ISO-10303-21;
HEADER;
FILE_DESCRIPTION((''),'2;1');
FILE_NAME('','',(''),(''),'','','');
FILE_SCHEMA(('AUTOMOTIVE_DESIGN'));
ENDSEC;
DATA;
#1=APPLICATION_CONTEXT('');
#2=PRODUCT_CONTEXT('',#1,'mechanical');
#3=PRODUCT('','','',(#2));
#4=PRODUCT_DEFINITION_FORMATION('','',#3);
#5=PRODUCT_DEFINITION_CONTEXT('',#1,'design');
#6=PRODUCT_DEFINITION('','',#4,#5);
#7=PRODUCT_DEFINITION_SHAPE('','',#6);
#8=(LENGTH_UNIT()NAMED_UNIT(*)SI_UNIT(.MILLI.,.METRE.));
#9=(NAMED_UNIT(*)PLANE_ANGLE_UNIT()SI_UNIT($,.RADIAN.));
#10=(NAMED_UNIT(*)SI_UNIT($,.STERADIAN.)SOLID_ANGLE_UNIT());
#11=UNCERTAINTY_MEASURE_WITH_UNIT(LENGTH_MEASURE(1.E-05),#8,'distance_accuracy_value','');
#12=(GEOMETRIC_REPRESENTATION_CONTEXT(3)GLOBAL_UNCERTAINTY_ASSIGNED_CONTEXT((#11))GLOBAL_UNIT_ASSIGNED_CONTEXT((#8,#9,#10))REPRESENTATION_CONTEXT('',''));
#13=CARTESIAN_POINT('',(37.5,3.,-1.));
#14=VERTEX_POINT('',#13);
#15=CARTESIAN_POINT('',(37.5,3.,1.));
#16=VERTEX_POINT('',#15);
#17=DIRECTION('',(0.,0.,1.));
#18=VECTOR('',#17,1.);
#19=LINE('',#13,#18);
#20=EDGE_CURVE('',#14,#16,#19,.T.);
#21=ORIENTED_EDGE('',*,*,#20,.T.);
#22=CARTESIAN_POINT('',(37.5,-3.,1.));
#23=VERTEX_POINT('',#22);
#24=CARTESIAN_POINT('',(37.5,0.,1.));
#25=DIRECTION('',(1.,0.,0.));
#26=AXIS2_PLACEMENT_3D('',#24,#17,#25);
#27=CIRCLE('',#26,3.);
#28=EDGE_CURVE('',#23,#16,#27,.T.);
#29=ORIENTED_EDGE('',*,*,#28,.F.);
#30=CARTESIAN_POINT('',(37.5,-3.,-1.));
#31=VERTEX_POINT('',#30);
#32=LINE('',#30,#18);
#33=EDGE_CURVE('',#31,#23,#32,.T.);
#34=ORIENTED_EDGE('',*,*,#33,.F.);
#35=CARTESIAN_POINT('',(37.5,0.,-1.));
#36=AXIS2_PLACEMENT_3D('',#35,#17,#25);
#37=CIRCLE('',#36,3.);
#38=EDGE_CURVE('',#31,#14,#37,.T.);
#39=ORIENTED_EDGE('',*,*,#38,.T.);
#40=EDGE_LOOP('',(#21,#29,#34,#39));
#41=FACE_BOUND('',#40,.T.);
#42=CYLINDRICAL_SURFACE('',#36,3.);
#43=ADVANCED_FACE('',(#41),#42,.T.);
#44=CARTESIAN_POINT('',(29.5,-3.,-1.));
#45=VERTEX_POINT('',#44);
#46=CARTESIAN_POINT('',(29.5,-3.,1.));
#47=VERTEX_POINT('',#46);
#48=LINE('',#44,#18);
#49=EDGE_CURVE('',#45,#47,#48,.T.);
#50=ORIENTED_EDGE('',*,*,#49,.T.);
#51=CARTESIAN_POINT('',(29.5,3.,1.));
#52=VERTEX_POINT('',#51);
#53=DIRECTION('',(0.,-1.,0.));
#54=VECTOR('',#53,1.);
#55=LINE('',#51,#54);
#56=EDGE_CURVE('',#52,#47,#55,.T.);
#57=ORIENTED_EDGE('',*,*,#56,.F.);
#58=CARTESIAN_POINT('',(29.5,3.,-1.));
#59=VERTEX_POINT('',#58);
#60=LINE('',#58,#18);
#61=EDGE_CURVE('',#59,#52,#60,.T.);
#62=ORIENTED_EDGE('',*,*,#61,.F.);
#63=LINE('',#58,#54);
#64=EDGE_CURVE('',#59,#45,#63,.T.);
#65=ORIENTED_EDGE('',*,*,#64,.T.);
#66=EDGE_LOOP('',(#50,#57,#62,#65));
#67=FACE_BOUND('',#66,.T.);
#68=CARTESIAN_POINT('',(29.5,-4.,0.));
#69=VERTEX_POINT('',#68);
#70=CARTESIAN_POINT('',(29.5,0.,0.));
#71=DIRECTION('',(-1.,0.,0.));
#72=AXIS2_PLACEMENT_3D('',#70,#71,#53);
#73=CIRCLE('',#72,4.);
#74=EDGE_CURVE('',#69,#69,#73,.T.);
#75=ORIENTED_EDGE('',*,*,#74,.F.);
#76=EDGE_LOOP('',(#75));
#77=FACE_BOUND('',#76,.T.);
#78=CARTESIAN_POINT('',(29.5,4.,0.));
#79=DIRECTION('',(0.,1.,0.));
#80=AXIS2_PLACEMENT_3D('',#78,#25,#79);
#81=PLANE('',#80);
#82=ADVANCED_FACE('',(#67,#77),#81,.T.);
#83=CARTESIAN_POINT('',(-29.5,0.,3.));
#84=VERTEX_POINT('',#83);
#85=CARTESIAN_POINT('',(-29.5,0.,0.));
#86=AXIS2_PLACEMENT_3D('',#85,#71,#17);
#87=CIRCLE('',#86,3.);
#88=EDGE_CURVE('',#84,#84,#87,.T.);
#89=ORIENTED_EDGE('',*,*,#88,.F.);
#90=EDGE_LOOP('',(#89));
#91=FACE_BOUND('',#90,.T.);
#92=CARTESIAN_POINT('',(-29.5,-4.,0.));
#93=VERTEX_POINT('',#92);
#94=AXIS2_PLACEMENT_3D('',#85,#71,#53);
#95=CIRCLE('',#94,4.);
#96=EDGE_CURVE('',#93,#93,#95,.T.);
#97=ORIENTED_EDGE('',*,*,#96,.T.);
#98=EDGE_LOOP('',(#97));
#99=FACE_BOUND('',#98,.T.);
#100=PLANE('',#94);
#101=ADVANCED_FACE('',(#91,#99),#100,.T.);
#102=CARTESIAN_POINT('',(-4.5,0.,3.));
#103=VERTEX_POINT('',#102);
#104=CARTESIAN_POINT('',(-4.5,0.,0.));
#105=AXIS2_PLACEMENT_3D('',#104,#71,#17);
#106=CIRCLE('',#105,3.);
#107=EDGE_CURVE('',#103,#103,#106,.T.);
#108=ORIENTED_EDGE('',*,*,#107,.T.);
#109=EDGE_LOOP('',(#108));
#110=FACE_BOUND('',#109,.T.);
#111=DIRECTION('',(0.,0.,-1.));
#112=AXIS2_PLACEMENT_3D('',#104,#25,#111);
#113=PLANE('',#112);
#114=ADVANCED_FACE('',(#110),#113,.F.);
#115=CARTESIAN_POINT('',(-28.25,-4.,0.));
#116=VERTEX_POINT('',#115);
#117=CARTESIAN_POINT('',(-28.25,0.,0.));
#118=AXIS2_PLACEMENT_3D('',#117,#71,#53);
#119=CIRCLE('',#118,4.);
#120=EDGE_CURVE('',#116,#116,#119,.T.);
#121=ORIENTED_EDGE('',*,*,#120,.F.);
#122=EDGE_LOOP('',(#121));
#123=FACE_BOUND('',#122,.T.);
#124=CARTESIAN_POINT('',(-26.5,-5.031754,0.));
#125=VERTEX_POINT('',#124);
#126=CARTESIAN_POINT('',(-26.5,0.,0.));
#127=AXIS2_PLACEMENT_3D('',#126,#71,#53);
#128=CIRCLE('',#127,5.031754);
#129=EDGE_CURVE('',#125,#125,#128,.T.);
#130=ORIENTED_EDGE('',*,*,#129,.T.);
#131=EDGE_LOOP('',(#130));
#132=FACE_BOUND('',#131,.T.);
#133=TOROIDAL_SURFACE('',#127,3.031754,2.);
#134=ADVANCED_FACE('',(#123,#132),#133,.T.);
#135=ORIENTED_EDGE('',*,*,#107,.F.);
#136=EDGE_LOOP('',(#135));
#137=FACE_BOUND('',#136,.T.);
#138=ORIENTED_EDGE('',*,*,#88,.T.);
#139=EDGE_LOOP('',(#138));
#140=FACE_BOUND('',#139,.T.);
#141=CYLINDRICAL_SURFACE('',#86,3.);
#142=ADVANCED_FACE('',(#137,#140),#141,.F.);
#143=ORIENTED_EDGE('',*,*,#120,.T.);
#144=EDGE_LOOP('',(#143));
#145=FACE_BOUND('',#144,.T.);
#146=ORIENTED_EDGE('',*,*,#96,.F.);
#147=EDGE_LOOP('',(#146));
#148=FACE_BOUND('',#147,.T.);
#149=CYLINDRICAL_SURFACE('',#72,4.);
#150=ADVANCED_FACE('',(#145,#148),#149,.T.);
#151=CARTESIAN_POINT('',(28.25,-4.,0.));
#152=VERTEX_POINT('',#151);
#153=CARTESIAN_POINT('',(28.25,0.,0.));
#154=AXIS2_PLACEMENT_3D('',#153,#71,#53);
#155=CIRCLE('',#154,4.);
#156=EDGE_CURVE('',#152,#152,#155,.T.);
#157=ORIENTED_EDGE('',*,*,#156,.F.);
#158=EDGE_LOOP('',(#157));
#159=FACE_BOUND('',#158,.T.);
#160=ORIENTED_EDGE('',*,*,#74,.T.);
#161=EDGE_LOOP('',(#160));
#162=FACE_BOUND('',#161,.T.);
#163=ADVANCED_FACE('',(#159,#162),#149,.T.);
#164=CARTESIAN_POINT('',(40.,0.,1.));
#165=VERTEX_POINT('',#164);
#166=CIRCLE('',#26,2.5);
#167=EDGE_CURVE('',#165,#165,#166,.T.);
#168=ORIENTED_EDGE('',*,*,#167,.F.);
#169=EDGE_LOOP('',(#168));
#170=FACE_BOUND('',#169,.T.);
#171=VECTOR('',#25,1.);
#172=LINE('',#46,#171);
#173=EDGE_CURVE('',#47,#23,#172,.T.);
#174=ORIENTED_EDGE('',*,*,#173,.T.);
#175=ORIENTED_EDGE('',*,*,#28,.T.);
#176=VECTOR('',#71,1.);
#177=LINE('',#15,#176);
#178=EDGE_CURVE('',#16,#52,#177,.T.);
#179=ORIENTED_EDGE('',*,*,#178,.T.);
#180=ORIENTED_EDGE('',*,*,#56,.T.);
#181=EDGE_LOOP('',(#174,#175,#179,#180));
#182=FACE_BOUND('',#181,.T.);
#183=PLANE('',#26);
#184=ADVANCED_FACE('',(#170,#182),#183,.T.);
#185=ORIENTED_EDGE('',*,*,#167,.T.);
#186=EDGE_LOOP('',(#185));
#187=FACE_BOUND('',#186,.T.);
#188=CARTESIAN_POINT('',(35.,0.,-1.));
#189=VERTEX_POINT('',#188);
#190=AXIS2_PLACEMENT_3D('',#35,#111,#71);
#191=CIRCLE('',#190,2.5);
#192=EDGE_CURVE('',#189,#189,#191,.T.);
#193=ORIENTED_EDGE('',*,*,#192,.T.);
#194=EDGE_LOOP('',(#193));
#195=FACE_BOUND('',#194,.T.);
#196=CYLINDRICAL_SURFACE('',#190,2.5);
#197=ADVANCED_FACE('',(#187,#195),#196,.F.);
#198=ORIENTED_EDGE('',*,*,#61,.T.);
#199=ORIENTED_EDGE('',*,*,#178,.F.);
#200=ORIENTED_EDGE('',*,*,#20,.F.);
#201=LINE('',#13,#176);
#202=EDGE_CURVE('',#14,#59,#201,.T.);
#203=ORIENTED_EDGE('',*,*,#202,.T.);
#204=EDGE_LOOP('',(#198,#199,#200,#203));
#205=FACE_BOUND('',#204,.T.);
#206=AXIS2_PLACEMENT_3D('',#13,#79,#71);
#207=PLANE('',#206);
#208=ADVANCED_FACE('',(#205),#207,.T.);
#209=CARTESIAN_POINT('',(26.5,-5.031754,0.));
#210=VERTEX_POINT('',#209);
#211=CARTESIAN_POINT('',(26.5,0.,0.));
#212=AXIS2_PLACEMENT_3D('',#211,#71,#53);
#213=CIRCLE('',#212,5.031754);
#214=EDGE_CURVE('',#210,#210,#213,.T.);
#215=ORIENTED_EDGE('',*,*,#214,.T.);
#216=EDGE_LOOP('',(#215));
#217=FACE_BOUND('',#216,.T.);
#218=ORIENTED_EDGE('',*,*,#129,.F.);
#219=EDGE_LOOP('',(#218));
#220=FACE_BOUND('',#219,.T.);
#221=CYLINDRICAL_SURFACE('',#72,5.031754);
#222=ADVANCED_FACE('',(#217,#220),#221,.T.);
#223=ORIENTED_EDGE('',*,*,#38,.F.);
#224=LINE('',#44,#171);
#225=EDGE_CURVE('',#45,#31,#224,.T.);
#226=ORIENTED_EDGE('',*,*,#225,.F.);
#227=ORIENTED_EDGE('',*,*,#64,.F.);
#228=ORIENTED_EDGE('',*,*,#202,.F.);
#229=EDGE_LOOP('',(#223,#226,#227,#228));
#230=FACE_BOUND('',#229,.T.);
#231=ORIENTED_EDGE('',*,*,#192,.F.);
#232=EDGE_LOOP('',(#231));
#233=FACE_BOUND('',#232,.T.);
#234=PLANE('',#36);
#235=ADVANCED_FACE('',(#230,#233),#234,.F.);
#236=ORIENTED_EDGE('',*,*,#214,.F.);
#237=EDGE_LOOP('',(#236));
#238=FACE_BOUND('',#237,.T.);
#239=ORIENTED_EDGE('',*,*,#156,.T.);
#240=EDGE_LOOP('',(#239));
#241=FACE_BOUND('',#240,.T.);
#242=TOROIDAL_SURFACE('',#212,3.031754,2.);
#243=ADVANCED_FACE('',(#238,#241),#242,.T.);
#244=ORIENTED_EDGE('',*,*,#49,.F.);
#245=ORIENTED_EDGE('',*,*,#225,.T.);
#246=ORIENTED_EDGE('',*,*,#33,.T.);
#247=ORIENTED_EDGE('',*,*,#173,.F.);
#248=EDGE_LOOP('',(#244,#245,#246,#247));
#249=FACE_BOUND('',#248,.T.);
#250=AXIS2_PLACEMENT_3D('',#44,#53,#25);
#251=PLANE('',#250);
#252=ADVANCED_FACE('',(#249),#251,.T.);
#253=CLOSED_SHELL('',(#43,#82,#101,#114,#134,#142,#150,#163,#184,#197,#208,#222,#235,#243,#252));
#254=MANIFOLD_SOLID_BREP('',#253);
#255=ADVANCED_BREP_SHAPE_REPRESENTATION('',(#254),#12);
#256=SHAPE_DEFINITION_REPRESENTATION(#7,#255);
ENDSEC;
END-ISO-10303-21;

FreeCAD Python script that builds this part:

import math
import FreeCAD as App
import Part
import Sketcher
from FreeCAD import Vector
Q = App.Units.Quantity

doc = App.newDocument("Part")
body = doc.addObject("PartDesign::Body", "Body")

# Sketch on XY plane
sketch1 = body.newObject("Sketcher::SketchObject", "Sketch")
sketch1.AttachmentSupport = (doc.getObject("XY_Plane"), [""])
sketch1.MapMode = "FlatFace"
sketch1.addGeometry(Part.LineSegment(Vector(29.5, 4, 0), Vector(29.5, 0, 0)), False)
sketch1.addGeometry(Part.LineSegment(Vector(29.5, 0, 0), Vector(-29.5, 0, 0)), False)
sketch1.addGeometry(Part.LineSegment(Vector(-29.5, 0, 0), Vector(-29.5, 4, 0)), False)
sketch1.addGeometry(Part.LineSegment(Vector(-29.5, 4, 0), Vector(-28.2, 4, 0)), False)
sketch1.addGeometry(Part.ArcOfCircle(Part.Circle(Vector(-26.5, 3, 0), Vector(0, 0, 1), 2), math.radians(90), math.radians(151)), False)
sketch1.addGeometry(Part.LineSegment(Vector(-26.5, 5, 0), Vector(26.5, 5, 0)), False)
sketch1.addGeometry(Part.ArcOfCircle(Part.Circle(Vector(26.5, 3, 0), Vector(0, 0, 1), 2), math.radians(29), math.radians(90)), False)
sketch1.addGeometry(Part.LineSegment(Vector(28.2, 4, 0), Vector(29.5, 4, 0)), False)
sketch1.addConstraint(Sketcher.Constraint("Coincident", 0, 2, 1, 1))
sketch1.addConstraint(Sketcher.Constraint("Coincident", 1, 2, 2, 1))
sketch1.addConstraint(Sketcher.Constraint("Coincident", 2, 2, 3, 1))
sketch1.addConstraint(Sketcher.Constraint("Coincident", 3, 2, 4, 2))
sketch1.addConstraint(Sketcher.Constraint("Tangent", 4, 1, 5, 1))
sketch1.addConstraint(Sketcher.Constraint("Tangent", 5, 2, 6, 2))
sketch1.addConstraint(Sketcher.Constraint("Coincident", 6, 1, 7, 1))
sketch1.addConstraint(Sketcher.Constraint("Coincident", 7, 2, 0, 1))
sketch1.addConstraint(Sketcher.Constraint("Vertical", 0))
sketch1.addConstraint(Sketcher.Constraint("Horizontal", 1))
sketch1.addConstraint(Sketcher.Constraint("Vertical", 2))
sketch1.addConstraint(Sketcher.Constraint("Horizontal", 3))
sketch1.addConstraint(Sketcher.Constraint("Horizontal", 5))
sketch1.addConstraint(Sketcher.Constraint("Horizontal", 7))
sketch1.addConstraint(Sketcher.Constraint("Equal", 4, 6))
sketch1.addConstraint(Sketcher.Constraint("Symmetric", 0, 2, 1, 2, -1, 1))
sketch1.addConstraint(Sketcher.Constraint("Symmetric", 3, 2, 6, 1, -2))
sketch1.addConstraint(Sketcher.Constraint("Radius", 4, Q("2 mm")))
sketch1.addConstraint(Sketcher.Constraint("DistanceX", 1, 2, 1, 1, Q("59 mm")))
sketch1.addConstraint(Sketcher.Constraint("DistanceX", 5, 1, 5, 2, Q("53 mm")))
sketch1.addConstraint(Sketcher.Constraint("DistanceY", 0, 2, 0, 1, Q("4 mm")))
sketch1.addConstraint(Sketcher.Constraint("DistanceX", 3, 1, 3, 2, Q("1.25 mm")))
revolution = body.newObject("PartDesign::Revolution", "Revolution")
revolution.Profile = sketch1
revolution.ReferenceAxis = (sketch1, ["H_Axis"])
revolution.Angle = 360

# Sketch on XY plane
sketch2 = body.newObject("Sketcher::SketchObject", "Sketch001")
sketch2.AttachmentSupport = (doc.getObject("XY_Plane"), [""])
sketch2.MapMode = "FlatFace"
sketch2.AttachmentOffset = App.Placement(Vector(0, 0, 1), App.Rotation())
sketch2.addGeometry(Part.LineSegment(Vector(37.5, 3, 0), Vector(29.5, 3, 0)), False)
sketch2.addGeometry(Part.LineSegment(Vector(29.5, 3, 0), Vector(29.5, -3, 0)), False)
sketch2.addGeometry(Part.LineSegment(Vector(29.5, -3, 0), Vector(37.5, -3, 0)), False)
sketch2.addGeometry(Part.ArcOfCircle(Part.Circle(Vector(37.5, 0, 0), Vector(0, 0, 1), 3), math.radians(-90), math.radians(90)), False)
sketch2.addConstraint(Sketcher.Constraint("Coincident", 0, 2, 1, 1))
sketch2.addConstraint(Sketcher.Constraint("Coincident", 1, 2, 2, 1))
sketch2.addConstraint(Sketcher.Constraint("Tangent", 2, 2, 3, 1))
sketch2.addConstraint(Sketcher.Constraint("Tangent", 3, 2, 0, 1))
sketch2.addConstraint(Sketcher.Constraint("Horizontal", 0))
sketch2.addConstraint(Sketcher.Constraint("Vertical", 1))
sketch2.addConstraint(Sketcher.Constraint("Horizontal", 2))
sketch2.addConstraint(Sketcher.Constraint("PointOnObject", 3, 3, -1))
sketch2.addConstraint(Sketcher.Constraint("Radius", 3, Q("3 mm")))
sketch2.addConstraint(Sketcher.Constraint("DistanceX", 0, 2, 0, 1, Q("8 mm")))
sketch2.addConstraint(Sketcher.Constraint("DistanceX", -1, 1, 3, 3, Q("37.5 mm")))
pad1 = body.newObject("PartDesign::Pad", "Pad")
pad1.Profile = sketch2
pad1.Length = 2
pad1.Reversed = True

# Sketch on YZ plane
sketch3 = body.newObject("Sketcher::SketchObject", "Sketch002")
sketch3.AttachmentSupport = (doc.getObject("YZ_Plane"), [""])
sketch3.MapMode = "FlatFace"
sketch3.AttachmentOffset = App.Placement(Vector(0, 0, -29.5), App.Rotation())
sketch3.addGeometry(Part.Circle(Vector(0, 0, 0), Vector(0, 0, 1), 3), False)
sketch3.addConstraint(Sketcher.Constraint("Coincident", 0, 3, -1, 1))
sketch3.addConstraint(Sketcher.Constraint("Diameter", 0, Q("6 mm")))
doc.recompute()
hole = body.newObject("PartDesign::Hole", "Hole")
hole.Profile = sketch3
hole.ThreadType = "None"
hole.Diameter = 6
hole.DepthType = "Dimension"
hole.Depth = 25
hole.DrillPoint = "Flat"
hole.Reversed = True

# Sketch on XY plane
sketch4 = body.newObject("Sketcher::SketchObject", "Sketch003")
sketch4.AttachmentSupport = (doc.getObject("XY_Plane"), [""])
sketch4.MapMode = "FlatFace"
sketch4.AttachmentOffset = App.Placement(Vector(0, 0, -1), App.Rotation())
sketch4.addGeometry(Part.Circle(Vector(37.5, 0, 0), Vector(0, 0, 1), 2.5), False)
sketch4.addConstraint(Sketcher.Constraint("PointOnObject", 0, 3, -1))
sketch4.addConstraint(Sketcher.Constraint("Diameter", 0, Q("5 mm")))
sketch4.addConstraint(Sketcher.Constraint("DistanceX", -1, 1, 0, 3, Q("37.5 mm")))
doc.recompute()
hole2 = body.newObject("PartDesign::Hole", "Hole001")
hole2.Profile = sketch4
hole2.ThreadType = "None"
hole2.Diameter = 5
hole2.DepthType = "Dimension"
hole2.Depth = 6.031754
hole2.DrillPoint = "Flat"
hole2.Reversed = True

doc.recompute()
